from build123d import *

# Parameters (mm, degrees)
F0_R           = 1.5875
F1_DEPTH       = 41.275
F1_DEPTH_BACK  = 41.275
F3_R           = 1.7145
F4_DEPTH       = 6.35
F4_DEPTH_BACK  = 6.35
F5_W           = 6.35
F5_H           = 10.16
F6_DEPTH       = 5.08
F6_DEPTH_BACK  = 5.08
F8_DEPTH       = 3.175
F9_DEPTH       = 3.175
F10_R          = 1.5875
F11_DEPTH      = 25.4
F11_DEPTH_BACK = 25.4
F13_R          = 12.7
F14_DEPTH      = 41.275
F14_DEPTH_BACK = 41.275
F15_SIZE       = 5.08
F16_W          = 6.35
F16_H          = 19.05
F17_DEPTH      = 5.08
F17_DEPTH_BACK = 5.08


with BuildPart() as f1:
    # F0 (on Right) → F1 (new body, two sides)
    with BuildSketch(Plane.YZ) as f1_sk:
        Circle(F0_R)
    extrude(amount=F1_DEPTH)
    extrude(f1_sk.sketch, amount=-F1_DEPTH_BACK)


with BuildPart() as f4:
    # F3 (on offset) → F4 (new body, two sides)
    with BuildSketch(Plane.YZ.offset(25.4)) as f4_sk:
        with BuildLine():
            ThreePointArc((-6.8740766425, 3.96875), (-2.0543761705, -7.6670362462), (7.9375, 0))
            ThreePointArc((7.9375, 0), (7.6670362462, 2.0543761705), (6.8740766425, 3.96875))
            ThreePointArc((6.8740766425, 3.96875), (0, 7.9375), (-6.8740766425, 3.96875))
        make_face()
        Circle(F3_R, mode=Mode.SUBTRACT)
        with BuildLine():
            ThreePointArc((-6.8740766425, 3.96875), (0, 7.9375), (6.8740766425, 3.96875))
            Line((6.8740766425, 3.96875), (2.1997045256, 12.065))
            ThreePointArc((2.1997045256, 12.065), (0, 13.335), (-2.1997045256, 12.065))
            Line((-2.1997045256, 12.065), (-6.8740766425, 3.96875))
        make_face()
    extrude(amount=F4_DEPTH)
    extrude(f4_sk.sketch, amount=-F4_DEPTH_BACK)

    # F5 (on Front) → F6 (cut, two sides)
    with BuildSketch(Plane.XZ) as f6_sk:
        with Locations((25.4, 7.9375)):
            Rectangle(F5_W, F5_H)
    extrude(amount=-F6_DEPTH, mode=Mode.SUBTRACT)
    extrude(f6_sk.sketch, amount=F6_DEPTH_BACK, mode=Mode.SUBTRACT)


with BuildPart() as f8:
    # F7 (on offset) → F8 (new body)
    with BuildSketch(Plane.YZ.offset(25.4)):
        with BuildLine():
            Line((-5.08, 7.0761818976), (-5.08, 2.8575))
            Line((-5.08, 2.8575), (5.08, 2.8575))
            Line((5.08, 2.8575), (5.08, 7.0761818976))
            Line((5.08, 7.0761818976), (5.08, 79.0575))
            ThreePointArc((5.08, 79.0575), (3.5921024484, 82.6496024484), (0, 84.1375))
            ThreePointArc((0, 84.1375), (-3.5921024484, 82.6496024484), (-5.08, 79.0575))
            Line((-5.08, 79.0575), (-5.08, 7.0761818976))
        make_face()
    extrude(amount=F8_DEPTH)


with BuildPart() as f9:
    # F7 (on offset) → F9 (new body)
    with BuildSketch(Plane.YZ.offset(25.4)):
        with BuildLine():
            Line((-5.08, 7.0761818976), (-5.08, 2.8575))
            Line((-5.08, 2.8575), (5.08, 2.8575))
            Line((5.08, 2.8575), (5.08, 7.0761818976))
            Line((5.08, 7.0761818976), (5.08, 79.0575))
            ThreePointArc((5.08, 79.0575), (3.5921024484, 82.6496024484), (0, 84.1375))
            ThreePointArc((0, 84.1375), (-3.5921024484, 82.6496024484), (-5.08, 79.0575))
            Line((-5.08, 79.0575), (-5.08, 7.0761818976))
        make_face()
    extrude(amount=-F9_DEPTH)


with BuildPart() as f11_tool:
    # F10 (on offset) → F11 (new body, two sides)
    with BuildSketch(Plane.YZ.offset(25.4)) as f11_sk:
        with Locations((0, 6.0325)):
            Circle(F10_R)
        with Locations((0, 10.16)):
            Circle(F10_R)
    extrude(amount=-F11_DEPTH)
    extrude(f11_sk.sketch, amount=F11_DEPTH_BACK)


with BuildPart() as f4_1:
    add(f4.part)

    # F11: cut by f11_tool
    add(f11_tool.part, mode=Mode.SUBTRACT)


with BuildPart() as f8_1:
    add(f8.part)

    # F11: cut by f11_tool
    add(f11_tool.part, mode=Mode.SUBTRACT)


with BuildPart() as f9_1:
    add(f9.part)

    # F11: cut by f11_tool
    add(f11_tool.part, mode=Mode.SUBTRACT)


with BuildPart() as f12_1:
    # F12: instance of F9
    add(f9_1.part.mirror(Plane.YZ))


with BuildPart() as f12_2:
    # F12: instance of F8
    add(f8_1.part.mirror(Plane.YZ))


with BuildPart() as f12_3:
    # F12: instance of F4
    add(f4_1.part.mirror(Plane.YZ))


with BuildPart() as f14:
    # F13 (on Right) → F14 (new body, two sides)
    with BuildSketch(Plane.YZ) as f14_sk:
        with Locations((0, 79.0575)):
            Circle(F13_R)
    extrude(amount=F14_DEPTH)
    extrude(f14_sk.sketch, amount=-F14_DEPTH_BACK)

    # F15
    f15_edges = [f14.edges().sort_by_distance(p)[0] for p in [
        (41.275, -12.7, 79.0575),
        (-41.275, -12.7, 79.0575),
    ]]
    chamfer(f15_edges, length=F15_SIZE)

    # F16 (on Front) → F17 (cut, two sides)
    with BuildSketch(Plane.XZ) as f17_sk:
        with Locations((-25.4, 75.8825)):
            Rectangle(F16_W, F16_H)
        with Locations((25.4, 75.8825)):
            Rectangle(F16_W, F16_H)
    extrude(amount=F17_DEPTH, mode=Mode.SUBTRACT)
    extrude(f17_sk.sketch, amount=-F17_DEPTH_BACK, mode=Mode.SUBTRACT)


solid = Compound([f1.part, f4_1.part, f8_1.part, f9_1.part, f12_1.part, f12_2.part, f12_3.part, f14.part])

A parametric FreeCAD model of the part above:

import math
import FreeCAD as App
import Part
import Sketcher
Q = App.Units.Quantity


def edges_at(feature, points):
    """Names of the edges that pass closest to the given points."""
    edges = feature.Shape.Edges
    near = lambda p: min(range(len(edges)), key=lambda i: edges[i].distToShape(Part.Vertex(*p))[0])
    return sorted({f"Edge{near(p) + 1}" for p in points})


def add_polygon(sketch, points):
    """Adds a closed chain of lines whose ends are joined by coincident constraints."""
    first, n = sketch.GeometryCount, len(points)
    for a, b in zip(points, points[1:] + points[:1]):
        sketch.addGeometry(Part.LineSegment(App.Vector(*a, 0), App.Vector(*b, 0)), False)
    for i in range(n):
        sketch.addConstraint(Sketcher.Constraint("Coincident", first + i, 2, first + (i + 1) % n, 1))

doc = App.newDocument("Part")
body = doc.addObject("PartDesign::Body", "Body")

# Sketch on YZ plane
sketch1 = body.newObject("Sketcher::SketchObject", "Sketch")
sketch1.AttachmentSupport = (doc.getObject("YZ_Plane"), [""])
sketch1.MapMode = "FlatFace"
sketch1.addGeometry(Part.Circle(App.Vector(0, 0, 0), App.Vector(0, 0, 1), 1.5875), False)
sketch1.addConstraint([
    Sketcher.Constraint("Coincident", 0, 3, -1, 1),
    Sketcher.Constraint("Diameter", 0, Q("0.125 in")),
])
pad1 = body.newObject("PartDesign::Pad", "Pad")
pad1.Profile = sketch1
pad1.Type = "TwoLengths"
pad1.Length = Q("1.625 in")
pad1.Length2 = Q("1.625 in")
body2 = doc.addObject("PartDesign::Body", "Body001")

# Sketch on YZ plane
sketch2 = body2.newObject("Sketcher::SketchObject", "Sketch001")
sketch2.AttachmentSupport = (doc.getObject("YZ_Plane001"), [""])
sketch2.MapMode = "FlatFace"
sketch2.AttachmentOffset = App.Placement(App.Vector(0, 0, 1 * 25.4), App.Rotation())
sketch2.addGeometry([
    Part.ArcOfCircle(Part.Circle(App.Vector(0, 0, 0), App.Vector(0, 0, 1), 7.9375), math.radians(150), math.radians(360)),  # 0
    Part.ArcOfCircle(Part.Circle(App.Vector(0, 0, 0), App.Vector(0, 0, 1), 7.9375), math.radians(0), math.radians(30)),  # 1
    Part.LineSegment(App.Vector(6.874077, 3.96875, 0), App.Vector(2.199705, 12.065, 0)),  # 2
    Part.ArcOfCircle(Part.Circle(App.Vector(0, 10.795, 0), App.Vector(0, 0, 1), 2.54), math.radians(30), math.radians(150)),  # 3
    Part.LineSegment(App.Vector(-2.199705, 12.065, 0), App.Vector(-6.874077, 3.96875, 0)),  # 4
    Part.Circle(App.Vector(0, 0, 0), App.Vector(0, 0, 1), 1.7145),  # 5
], False)
sketch2.addConstraint([
    Sketcher.Constraint("Tangent", 0, 2, 1, 1),
    Sketcher.Constraint("Tangent", 1, 2, 2, 1),
    Sketcher.Constraint("Tangent", 2, 2, 3, 1),
    Sketcher.Constraint("Tangent", 3, 2, 4, 1),
    Sketcher.Constraint("Tangent", 4, 2, 0, 1),
    Sketcher.Constraint("Coincident", 0, 3, -1, 1),
    Sketcher.Constraint("Coincident", 5, 3, -1, 1),
    Sketcher.Constraint("Equal", 0, 1),
    Sketcher.Constraint("PointOnObject", 3, 3, -2),
    Sketcher.Constraint("PointOnObject", 0, 2, -1),
    Sketcher.Constraint("Radius", 3, Q("0.1 in")),
    Sketcher.Constraint("Diameter", 5, Q("0.135 in")),
    Sketcher.Constraint("Angle", 2, Q("120 deg")),
    Sketcher.Constraint("Radius", 0, Q("0.3125 in")),
])
pad2 = body2.newObject("PartDesign::Pad", "Pad001")
pad2.Profile = sketch2
pad2.Type = "TwoLengths"
pad2.Length = Q("0.25 in")
pad2.Length2 = Q("0.25 in")

# Sketch on XZ plane
sketch3 = body2.newObject("Sketcher::SketchObject", "Sketch002")
sketch3.AttachmentSupport = (doc.getObject("XZ_Plane001"), [""])
sketch3.MapMode = "FlatFace"
add_polygon(sketch3, [(22.225, 13.0175), (22.225, 2.8575), (28.575, 2.8575), (28.575, 13.0175)])  # lines 0-3
sketch3.addConstraint([
    Sketcher.Constraint("Vertical", 0),
    Sketcher.Constraint("Horizontal", 1),
    Sketcher.Constraint("Vertical", 2),
    Sketcher.Constraint("Horizontal", 3),
    Sketcher.Constraint("DistanceY", 0, 2, 0, 1, Q("0.4 in")),
    Sketcher.Constraint("DistanceX", 1, 1, 1, 2, Q("0.25 in")),
    Sketcher.Constraint("DistanceX", -1, 1, 0, 2, Q("0.875 in")),
    Sketcher.Constraint("DistanceY", -1, 1, 0, 2, Q("0.1125 in")),
])
pocket1 = body2.newObject("PartDesign::Pocket", "Pocket")
pocket1.Profile = sketch3
pocket1.Type = "TwoLengths"
pocket1.Length = Q("0.2 in")
pocket1.Length2 = Q("0.2 in")
body3 = doc.addObject("PartDesign::Body", "Body002")

# Sketch on YZ plane
sketch4 = body3.newObject("Sketcher::SketchObject", "Sketch003")
sketch4.AttachmentSupport = (doc.getObject("YZ_Plane002"), [""])
sketch4.MapMode = "FlatFace"
sketch4.AttachmentOffset = App.Placement(App.Vector(0, 0, 1 * 25.4), App.Rotation())
sketch4.addGeometry([
    Part.LineSegment(App.Vector(-5.08, 2.8575, 0), App.Vector(5.08, 2.8575, 0)),  # 0
    Part.LineSegment(App.Vector(5.08, 2.8575, 0), App.Vector(5.08, 79.0575, 0)),  # 1
    Part.ArcOfCircle(Part.Circle(App.Vector(0, 79.0575, 0), App.Vector(0, 0, 1), 5.08), math.radians(0), math.radians(90)),  # 2
    Part.ArcOfCircle(Part.Circle(App.Vector(0, 79.0575, 0), App.Vector(0, 0, 1), 5.08), math.radians(90), math.radians(180)),  # 3
    Part.LineSegment(App.Vector(-5.08, 79.0575, 0), App.Vector(-5.08, 2.8575, 0)),  # 4
], False)
sketch4.addConstraint([
    Sketcher.Constraint("Coincident", 0, 2, 1, 1),
    Sketcher.Constraint("Tangent", 1, 2, 2, 1),
    Sketcher.Constraint("Tangent", 2, 2, 3, 1),
    Sketcher.Constraint("Tangent", 3, 2, 4, 1),
    Sketcher.Constraint("Coincident", 4, 2, 0, 1),
    Sketcher.Constraint("Horizontal", 0),
    Sketcher.Constraint("Vertical", 1),
    Sketcher.Constraint("Vertical", 4),
    Sketcher.Constraint("Equal", 2, 3),
    Sketcher.Constraint("PointOnObject", 2, 3, -2),
    Sketcher.Constraint("PointOnObject", 2, 2, -2),
    Sketcher.Constraint("Radius", 2, Q("0.2 in")),
    Sketcher.Constraint("DistanceY", 1, 1, 1, 2, Q("3 in")),
    Sketcher.Constraint("DistanceY", -1, 1, 2, 2, Q("3.3125 in")),
])
pad3 = body3.newObject("PartDesign::Pad", "Pad002")
pad3.Profile = sketch4
pad3.Length = Q("0.125 in")
body4 = doc.addObject("PartDesign::Body", "Body003")

# Sketch on YZ plane
sketch5 = body4.newObject("Sketcher::SketchObject", "Sketch004")
sketch5.AttachmentSupport = (doc.getObject("YZ_Plane003"), [""])
sketch5.MapMode = "FlatFace"
sketch5.AttachmentOffset = App.Placement(App.Vector(0, 0, 1 * 25.4), App.Rotation())
sketch5.addGeometry([
    Part.LineSegment(App.Vector(-5.08, 2.8575, 0), App.Vector(5.08, 2.8575, 0)),  # 0
    Part.LineSegment(App.Vector(5.08, 2.8575, 0), App.Vector(5.08, 79.0575, 0)),  # 1
    Part.ArcOfCircle(Part.Circle(App.Vector(0, 79.0575, 0), App.Vector(0, 0, 1), 5.08), math.radians(0), math.radians(90)),  # 2
    Part.ArcOfCircle(Part.Circle(App.Vector(0, 79.0575, 0), App.Vector(0, 0, 1), 5.08), math.radians(90), math.radians(180)),  # 3
    Part.LineSegment(App.Vector(-5.08, 79.0575, 0), App.Vector(-5.08, 2.8575, 0)),  # 4
], False)
sketch5.addConstraint([
    Sketcher.Constraint("Coincident", 0, 2, 1, 1),
    Sketcher.Constraint("Tangent", 1, 2, 2, 1),
    Sketcher.Constraint("Tangent", 2, 2, 3, 1),
    Sketcher.Constraint("Tangent", 3, 2, 4, 1),
    Sketcher.Constraint("Coincident", 4, 2, 0, 1),
    Sketcher.Constraint("Horizontal", 0),
    Sketcher.Constraint("Vertical", 1),
    Sketcher.Constraint("Vertical", 4),
    Sketcher.Constraint("Equal", 2, 3),
    Sketcher.Constraint("PointOnObject", 2, 3, -2),
    Sketcher.Constraint("PointOnObject", 2, 2, -2),
    Sketcher.Constraint("Radius", 2, Q("0.2 in")),
    Sketcher.Constraint("DistanceY", 1, 1, 1, 2, Q("3 in")),
    Sketcher.Constraint("DistanceY", -1, 1, 2, 2, Q("3.3125 in")),
])
pad4 = body4.newObject("PartDesign::Pad", "Pad003")
pad4.Profile = sketch5
pad4.Length = Q("0.125 in")
pad4.Reversed = True
body5 = doc.addObject("PartDesign::Body", "Body004")
body5.AllowCompound = True

# Sketch on YZ plane
sketch6 = body5.newObject("Sketcher::SketchObject", "Sketch005")
sketch6.AttachmentSupport = (doc.getObject("YZ_Plane004"), [""])
sketch6.MapMode = "FlatFace"
sketch6.AttachmentOffset = App.Placement(App.Vector(0, 0, 1 * 25.4), App.Rotation())
sketch6.addGeometry([
    Part.Circle(App.Vector(0, 6.0325, 0), App.Vector(0, 0, 1), 1.5875),
    Part.Circle(App.Vector(0, 10.16, 0), App.Vector(0, 0, 1), 1.5875),
], False)
sketch6.addConstraint([
    Sketcher.Constraint("Equal", 0, 1),
    Sketcher.Constraint("PointOnObject", 0, 3, -2),
    Sketcher.Constraint("PointOnObject", 1, 3, -2),
    Sketcher.Constraint("Diameter", 0, Q("0.125 in")),
    Sketcher.Constraint("DistanceY", -1, 1, 1, 3, Q("0.4 in")),
    Sketcher.Constraint("DistanceY", -1, 1, 0, 3, Q("0.2375 in")),
])
pad5 = body5.newObject("PartDesign::Pad", "Pad004")
pad5.Profile = sketch6
pad5.Type = "TwoLengths"
pad5.Length = Q("1 in")
pad5.Length2 = Q("1 in")
pad5.Reversed = True
doc.recompute()

body6 = doc.addObject("PartDesign::Body", "Body005")
body6.BaseFeature = body5
boolean = body2.newObject("PartDesign::Boolean", "Boolean")
boolean.Type = "Cut"
boolean.addObjects([body6])
doc.recompute()

body7 = doc.addObject("PartDesign::Body", "Body006")
body7.BaseFeature = body5
boolean2 = body3.newObject("PartDesign::Boolean", "Boolean001")
boolean2.Type = "Cut"
boolean2.addObjects([body7])
doc.recompute()

boolean3 = body4.newObject("PartDesign::Boolean", "Boolean002")
boolean3.Type = "Cut"
boolean3.addObjects([body5])
body8 = doc.addObject("PartDesign::Body", "Body007")
doc.recompute()

mirroring = doc.addObject("Part::Mirroring", "Mirroring")
mirroring.Source = body4
mirroring.Base = App.Vector(0, 0, 0)
mirroring.Normal = App.Vector(1, 0, 0)
body8.BaseFeature = mirroring
doc.recompute()
body9 = doc.addObject("PartDesign::Body", "Body008")
doc.recompute()

mirroring2 = doc.addObject("Part::Mirroring", "Mirroring001")
mirroring2.Source = body3
mirroring2.Base = App.Vector(0, 0, 0)
mirroring2.Normal = App.Vector(1, 0, 0)
body9.BaseFeature = mirroring2
doc.recompute()
body10 = doc.addObject("PartDesign::Body", "Body009")
doc.recompute()

mirroring3 = doc.addObject("Part::Mirroring", "Mirroring002")
mirroring3.Source = body2
mirroring3.Base = App.Vector(0, 0, 0)
mirroring3.Normal = App.Vector(1, 0, 0)
body10.BaseFeature = mirroring3
doc.recompute()
body11 = doc.addObject("PartDesign::Body", "Body010")

# Sketch on YZ plane
sketch7 = body11.newObject("Sketcher::SketchObject", "Sketch006")
sketch7.AttachmentSupport = (doc.getObject("YZ_Plane010"), [""])
sketch7.MapMode = "FlatFace"
sketch7.addGeometry(Part.Circle(App.Vector(0, 79.0575, 0), App.Vector(0, 0, 1), 12.7), False)
sketch7.addConstraint([
    Sketcher.Constraint("PointOnObject", 0, 3, -2),
    Sketcher.Constraint("Diameter", 0, Q("1 in")),
    Sketcher.Constraint("DistanceY", -1, 1, 0, 3, Q("3.1125 in")),
])
pad6 = body11.newObject("PartDesign::Pad", "Pad005")
pad6.Profile = sketch7
pad6.Type = "TwoLengths"
pad6.Length = Q("1.625 in")
pad6.Length2 = Q("1.625 in")
doc.recompute()

chamfer = body11.newObject("PartDesign::Chamfer", "Chamfer")
chamfer.Base = (pad6, edges_at(pad6, [(41.275, -12.7, 79.058), (-41.275, -12.7, 79.058)]))
chamfer.Size = Q("0.2 in")

# Sketch on XZ plane
sketch8 = body11.newObject("Sketcher::SketchObject", "Sketch007")
sketch8.AttachmentSupport = (doc.getObject("XZ_Plane010"), [""])
sketch8.MapMode = "FlatFace"
add_polygon(sketch8, [(-28.575, 85.4075), (-28.575, 66.3575), (-22.225, 66.3575), (-22.225, 85.4075)])  # lines 0-3
add_polygon(sketch8, [(22.225, 85.4075), (22.225, 66.3575), (28.575, 66.3575), (28.575, 85.4075)])  # lines 4-7
sketch8.addConstraint([
    Sketcher.Constraint("Vertical", 0),
    Sketcher.Constraint("Horizontal", 1),
    Sketcher.Constraint("Vertical", 2),
    Sketcher.Constraint("Horizontal", 3),
    Sketcher.Constraint("Vertical", 4),
    Sketcher.Constraint("Horizontal", 5),
    Sketcher.Constraint("Vertical", 6),
    Sketcher.Constraint("Horizontal", 7),
    Sketcher.Constraint("Symmetric", 1, 2, 4, 2, -2),
    Sketcher.Constraint("Symmetric", 3, 2, 6, 2, -2),
    Sketcher.Constraint("DistanceX", 0, 2, 4, 2, Q("2 in")),
    Sketcher.Constraint("DistanceX", 1, 1, 1, 2, Q("0.25 in")),
    Sketcher.Constraint("DistanceY", 0, 2, 0, 1, Q("0.75 in")),
    Sketcher.Constraint("DistanceY", -1, 1, 0, 2, Q("2.6125 in")),
])
pocket2 = body11.newObject("PartDesign::Pocket", "Pocket001")
pocket2.Profile = sketch8
pocket2.Type = "TwoLengths"
pocket2.Length = Q("0.2 in")
pocket2.Length2 = Q("0.2 in")
pocket2.Reversed = True
mirroring.Visibility = False
mirroring2.Visibility = False
mirroring3.Visibility = False

doc.recompute()
